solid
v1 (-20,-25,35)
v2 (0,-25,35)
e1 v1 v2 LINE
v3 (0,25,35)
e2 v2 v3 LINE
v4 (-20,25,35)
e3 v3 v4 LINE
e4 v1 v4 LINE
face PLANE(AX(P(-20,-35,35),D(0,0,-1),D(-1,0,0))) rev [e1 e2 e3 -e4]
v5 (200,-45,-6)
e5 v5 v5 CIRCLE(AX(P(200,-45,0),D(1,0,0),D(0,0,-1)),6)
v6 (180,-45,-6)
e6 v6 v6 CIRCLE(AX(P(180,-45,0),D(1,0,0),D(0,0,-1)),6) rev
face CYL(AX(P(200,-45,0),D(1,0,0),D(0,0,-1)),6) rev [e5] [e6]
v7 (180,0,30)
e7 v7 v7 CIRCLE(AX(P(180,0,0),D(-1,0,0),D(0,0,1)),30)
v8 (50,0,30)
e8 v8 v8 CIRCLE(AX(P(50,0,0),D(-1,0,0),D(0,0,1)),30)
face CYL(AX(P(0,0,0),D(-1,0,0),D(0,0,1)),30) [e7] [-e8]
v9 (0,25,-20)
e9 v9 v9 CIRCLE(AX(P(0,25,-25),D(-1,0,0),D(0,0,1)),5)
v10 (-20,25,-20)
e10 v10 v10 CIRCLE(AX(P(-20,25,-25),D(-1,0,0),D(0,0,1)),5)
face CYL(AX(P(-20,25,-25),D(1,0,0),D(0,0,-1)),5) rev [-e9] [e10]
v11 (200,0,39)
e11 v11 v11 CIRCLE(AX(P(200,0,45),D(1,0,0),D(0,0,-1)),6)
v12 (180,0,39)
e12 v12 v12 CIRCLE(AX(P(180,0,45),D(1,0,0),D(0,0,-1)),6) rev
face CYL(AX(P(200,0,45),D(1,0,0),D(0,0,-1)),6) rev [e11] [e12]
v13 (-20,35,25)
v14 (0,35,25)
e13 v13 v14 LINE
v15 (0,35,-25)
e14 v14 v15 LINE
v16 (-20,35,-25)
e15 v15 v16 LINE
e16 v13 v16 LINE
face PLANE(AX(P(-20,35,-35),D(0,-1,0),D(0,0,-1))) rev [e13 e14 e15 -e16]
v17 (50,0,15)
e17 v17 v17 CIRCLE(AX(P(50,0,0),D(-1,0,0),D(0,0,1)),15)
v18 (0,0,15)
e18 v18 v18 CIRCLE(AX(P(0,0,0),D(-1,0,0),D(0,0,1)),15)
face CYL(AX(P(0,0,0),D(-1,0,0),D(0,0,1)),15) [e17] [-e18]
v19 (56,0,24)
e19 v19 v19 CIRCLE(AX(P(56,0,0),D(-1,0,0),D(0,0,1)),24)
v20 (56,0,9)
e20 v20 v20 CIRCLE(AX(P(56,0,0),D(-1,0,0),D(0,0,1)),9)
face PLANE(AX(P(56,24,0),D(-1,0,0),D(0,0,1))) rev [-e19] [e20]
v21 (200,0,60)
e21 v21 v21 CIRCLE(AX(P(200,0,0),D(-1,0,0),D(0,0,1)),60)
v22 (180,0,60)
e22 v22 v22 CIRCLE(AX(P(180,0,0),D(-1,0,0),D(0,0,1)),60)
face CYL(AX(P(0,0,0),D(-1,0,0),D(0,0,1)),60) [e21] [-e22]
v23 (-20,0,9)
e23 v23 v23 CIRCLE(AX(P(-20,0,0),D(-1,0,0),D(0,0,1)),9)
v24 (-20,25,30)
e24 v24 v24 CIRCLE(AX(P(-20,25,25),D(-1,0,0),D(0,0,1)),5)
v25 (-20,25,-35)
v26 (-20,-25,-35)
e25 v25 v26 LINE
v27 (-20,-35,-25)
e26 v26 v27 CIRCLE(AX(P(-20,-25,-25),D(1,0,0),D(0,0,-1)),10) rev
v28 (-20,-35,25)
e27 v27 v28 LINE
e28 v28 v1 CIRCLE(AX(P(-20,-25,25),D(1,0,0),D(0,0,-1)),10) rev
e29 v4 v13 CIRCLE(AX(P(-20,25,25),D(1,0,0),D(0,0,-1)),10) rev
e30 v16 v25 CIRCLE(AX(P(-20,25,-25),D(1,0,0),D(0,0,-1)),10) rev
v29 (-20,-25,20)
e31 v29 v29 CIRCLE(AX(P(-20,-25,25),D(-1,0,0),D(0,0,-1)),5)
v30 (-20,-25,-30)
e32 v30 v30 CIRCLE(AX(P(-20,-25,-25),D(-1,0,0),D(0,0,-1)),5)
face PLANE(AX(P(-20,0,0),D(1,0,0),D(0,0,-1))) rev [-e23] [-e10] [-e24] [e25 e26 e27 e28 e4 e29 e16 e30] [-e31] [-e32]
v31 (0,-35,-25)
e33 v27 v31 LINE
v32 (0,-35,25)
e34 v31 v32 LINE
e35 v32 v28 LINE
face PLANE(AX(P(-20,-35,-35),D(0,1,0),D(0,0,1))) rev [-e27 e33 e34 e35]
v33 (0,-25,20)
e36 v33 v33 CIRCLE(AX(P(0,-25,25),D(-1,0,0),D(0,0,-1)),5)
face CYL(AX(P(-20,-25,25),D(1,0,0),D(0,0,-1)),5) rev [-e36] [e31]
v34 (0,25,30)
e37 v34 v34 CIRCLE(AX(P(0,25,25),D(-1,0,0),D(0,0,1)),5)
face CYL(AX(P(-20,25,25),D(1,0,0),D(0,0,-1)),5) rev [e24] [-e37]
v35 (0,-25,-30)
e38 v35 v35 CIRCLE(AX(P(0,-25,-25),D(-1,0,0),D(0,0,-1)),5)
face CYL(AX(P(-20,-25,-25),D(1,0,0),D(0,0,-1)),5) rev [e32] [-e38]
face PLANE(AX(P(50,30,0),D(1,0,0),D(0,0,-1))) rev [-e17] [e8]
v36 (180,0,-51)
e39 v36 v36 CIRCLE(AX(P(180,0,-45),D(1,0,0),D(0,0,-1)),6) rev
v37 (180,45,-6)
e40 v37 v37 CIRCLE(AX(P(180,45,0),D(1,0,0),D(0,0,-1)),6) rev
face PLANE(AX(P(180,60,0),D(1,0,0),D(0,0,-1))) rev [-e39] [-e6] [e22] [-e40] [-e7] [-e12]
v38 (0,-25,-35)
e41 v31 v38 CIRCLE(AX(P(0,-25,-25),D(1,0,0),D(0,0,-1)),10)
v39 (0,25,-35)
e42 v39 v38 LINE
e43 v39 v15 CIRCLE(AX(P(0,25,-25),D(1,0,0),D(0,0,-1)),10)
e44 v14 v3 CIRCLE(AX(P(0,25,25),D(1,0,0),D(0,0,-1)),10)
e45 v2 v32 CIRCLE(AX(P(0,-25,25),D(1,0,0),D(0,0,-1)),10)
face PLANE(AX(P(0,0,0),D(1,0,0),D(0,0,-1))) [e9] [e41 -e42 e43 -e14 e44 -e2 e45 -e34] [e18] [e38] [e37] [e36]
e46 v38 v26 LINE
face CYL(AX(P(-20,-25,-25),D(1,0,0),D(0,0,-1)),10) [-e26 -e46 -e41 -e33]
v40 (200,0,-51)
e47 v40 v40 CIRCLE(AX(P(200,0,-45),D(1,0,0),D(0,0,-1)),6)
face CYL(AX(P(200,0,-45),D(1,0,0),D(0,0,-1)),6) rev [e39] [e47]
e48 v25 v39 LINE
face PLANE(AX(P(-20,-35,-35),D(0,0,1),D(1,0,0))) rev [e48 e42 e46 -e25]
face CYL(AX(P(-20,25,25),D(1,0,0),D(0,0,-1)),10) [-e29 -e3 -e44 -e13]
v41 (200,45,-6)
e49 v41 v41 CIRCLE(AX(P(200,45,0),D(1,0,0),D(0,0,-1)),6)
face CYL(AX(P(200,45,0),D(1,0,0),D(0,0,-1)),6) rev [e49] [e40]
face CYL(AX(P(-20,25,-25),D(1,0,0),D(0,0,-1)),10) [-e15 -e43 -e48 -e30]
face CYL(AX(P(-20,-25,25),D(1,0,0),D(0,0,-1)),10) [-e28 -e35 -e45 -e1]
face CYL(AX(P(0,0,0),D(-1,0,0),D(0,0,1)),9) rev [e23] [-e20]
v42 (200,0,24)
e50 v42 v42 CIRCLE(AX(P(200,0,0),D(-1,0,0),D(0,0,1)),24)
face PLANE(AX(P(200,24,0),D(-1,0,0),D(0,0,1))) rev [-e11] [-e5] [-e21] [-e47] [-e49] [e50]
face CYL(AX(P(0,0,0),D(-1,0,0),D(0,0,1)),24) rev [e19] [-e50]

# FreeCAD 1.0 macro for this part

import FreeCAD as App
import Part
import Sketcher


def edges_at(feature, points):
    """Names of the edges that pass closest to the given points."""
    edges = feature.Shape.Edges
    near = lambda p: min(range(len(edges)), key=lambda i: edges[i].distToShape(Part.Vertex(*p))[0])
    return sorted({f"Edge{near(p) + 1}" for p in points})

doc = App.newDocument("Part")
body = doc.addObject("PartDesign::Body", "Body")

# Sketch on XY plane
sketch1 = body.newObject("Sketcher::SketchObject", "Sketch")
sketch1.AttachmentSupport = (doc.getObject("XY_Plane"), [""])
sketch1.MapMode = "FlatFace"
sketch1.addGeometry([
    Part.LineSegment(App.Vector(200, 24, 0), App.Vector(200, 60, 0)),  # 0
    Part.LineSegment(App.Vector(200, 60, 0), App.Vector(180, 60, 0)),  # 1
    Part.LineSegment(App.Vector(180, 60, 0), App.Vector(180, 30, 0)),  # 2
    Part.LineSegment(App.Vector(180, 30, 0), App.Vector(50, 30, 0)),  # 3
    Part.LineSegment(App.Vector(50, 30, 0), App.Vector(50, 15, 0)),  # 4
    Part.LineSegment(App.Vector(50, 15, 0), App.Vector(0, 15, 0)),  # 5
    Part.LineSegment(App.Vector(0, 15, 0), App.Vector(0, 9, 0)),  # 6
    Part.LineSegment(App.Vector(0, 9, 0), App.Vector(56, 9, 0)),  # 7
    Part.LineSegment(App.Vector(56, 9, 0), App.Vector(56, 24, 0)),  # 8
    Part.LineSegment(App.Vector(56, 24, 0), App.Vector(200, 24, 0)),  # 9
], False)
sketch1.addConstraint([
    Sketcher.Constraint("Coincident", 0, 2, 1, 1),
    Sketcher.Constraint("Coincident", 1, 2, 2, 1),
    Sketcher.Constraint("Coincident", 2, 2, 3, 1),
    Sketcher.Constraint("Coincident", 3, 2, 4, 1),
    Sketcher.Constraint("Coincident", 4, 2, 5, 1),
    Sketcher.Constraint("Coincident", 5, 2, 6, 1),
    Sketcher.Constraint("Coincident", 6, 2, 7, 1),
    Sketcher.Constraint("Coincident", 7, 2, 8, 1),
    Sketcher.Constraint("Coincident", 8, 2, 9, 1),
    Sketcher.Constraint("Coincident", 9, 2, 0, 1),
    Sketcher.Constraint("Vertical", 0),
    Sketcher.Constraint("Horizontal", 1),
    Sketcher.Constraint("Vertical", 2),
    Sketcher.Constraint("Horizontal", 3),
    Sketcher.Constraint("Vertical", 4),
    Sketcher.Constraint("Horizontal", 5),
    Sketcher.Constraint("Vertical", 6),
    Sketcher.Constraint("Horizontal", 7),
    Sketcher.Constraint("Vertical", 8),
    Sketcher.Constraint("Horizontal", 9),
    Sketcher.Constraint("PointOnObject", 5, 2, -2),
    Sketcher.Constraint("Equal", 4, 8),
    Sketcher.Constraint("DistanceX", 1, 2, 1, 1, 20.0),
    Sketcher.Constraint("DistanceX", 3, 2, 3, 1, 130.0),
    Sketcher.Constraint("DistanceX", 5, 2, 5, 1, 50.0),
    Sketcher.Constraint("DistanceX", 7, 1, 7, 2, 56.0),
    Sketcher.Constraint("DistanceY", 0, 1, 0, 2, 36.0),
    Sketcher.Constraint("DistanceY", 2, 2, 2, 1, 30.0),
    Sketcher.Constraint("DistanceY", 4, 2, 4, 1, 15.0),
    Sketcher.Constraint("DistanceY", -1, 1, 0, 2, 60.0),
])
revolution = body.newObject("PartDesign::Revolution", "Revolution")
revolution.Profile = sketch1
revolution.ReferenceAxis = (sketch1, ["H_Axis"])
revolution.Angle = 360

# Sketch on YZ plane
sketch2 = body.newObject("Sketcher::SketchObject", "Sketch001")
sketch2.AttachmentSupport = (doc.getObject("YZ_Plane"), [""])
sketch2.MapMode = "FlatFace"
sketch2.addGeometry([
    Part.LineSegment(App.Vector(35, -35, 0), App.Vector(-35, -35, 0)),  # 0
    Part.LineSegment(App.Vector(-35, -35, 0), App.Vector(-35, 35, 0)),  # 1
    Part.LineSegment(App.Vector(-35, 35, 0), App.Vector(35, 35, 0)),  # 2
    Part.LineSegment(App.Vector(35, 35, 0), App.Vector(35, -35, 0)),  # 3
    Part.Circle(App.Vector(-25, -25, 0), App.Vector(0, 0, 1), 5),  # 4
    Part.Circle(App.Vector(-25, 25, 0), App.Vector(0, 0, 1), 5),  # 5
    Part.Circle(App.Vector(25, -25, 0), App.Vector(0, 0, 1), 5),  # 6
    Part.Circle(App.Vector(0, 0, 0), App.Vector(0, 0, 1), 9),  # 7
    Part.Circle(App.Vector(25, 25, 0), App.Vector(0, 0, 1), 5),  # 8
], False)
sketch2.addConstraint([
    Sketcher.Constraint("Coincident", 0, 2, 1, 1),
    Sketcher.Constraint("Coincident", 1, 2, 2, 1),
    Sketcher.Constraint("Coincident", 2, 2, 3, 1),
    Sketcher.Constraint("Coincident", 3, 2, 0, 1),
    Sketcher.Constraint("Horizontal", 0),
    Sketcher.Constraint("Vertical", 1),
    Sketcher.Constraint("Horizontal", 2),
    Sketcher.Constraint("Vertical", 3),
    Sketcher.Constraint("Coincident", 7, 3, -1, 1),
    Sketcher.Constraint("Equal", 4, 5),
    Sketcher.Constraint("Equal", 5, 6),
    Sketcher.Constraint("Equal", 6, 8),
    Sketcher.Constraint("Symmetric", 5, 3, 6, 3, -1, 1),
    Sketcher.Constraint("Symmetric", 4, 3, 8, 3, -1, 1),
    Sketcher.Constraint("Symmetric", 0, 2, 2, 2, -1, 1),
    Sketcher.Constraint("Symmetric", 4, 3, 6, 3, -2),
    Sketcher.Constraint("Equal", 2, 1),
    Sketcher.Constraint("Diameter", 4, 10.0),
    Sketcher.Constraint("Diameter", 7, 18.0),
    Sketcher.Constraint("DistanceX", 0, 2, 0, 1, 70.0),
    Sketcher.Constraint("DistanceX", 4, 3, -1, 1, 25.0),
    Sketcher.Constraint("DistanceY", 4, 3, -1, 1, 25.0),
])
pad1 = body.newObject("PartDesign::Pad", "Pad")
pad1.Profile = sketch2
pad1.Length = 20
pad1.Reversed = True
doc.recompute()

fillet = body.newObject("PartDesign::Fillet", "Fillet")
fillet.Base = (pad1, edges_at(pad1, [
    (-10, -35, 35),
    (-10, 35, 35),
    (-10, 35, -35),
    (-10, -35, -35),
]))
fillet.Radius = 10

# Sketch on YZ plane
sketch3 = body.newObject("Sketcher::SketchObject", "Sketch002")
sketch3.AttachmentSupport = (doc.getObject("YZ_Plane"), [""])
sketch3.MapMode = "FlatFace"
sketch3.AttachmentOffset = App.Placement(App.Vector(0, 0, 200), App.Rotation())
sketch3.addGeometry([
    Part.Circle(App.Vector(0, -45, 0), App.Vector(0, 0, 1), 6),
    Part.Circle(App.Vector(45, 0, 0), App.Vector(0, 0, 1), 6),
    Part.Circle(App.Vector(0, 45, 0), App.Vector(0, 0, 1), 6),
    Part.Circle(App.Vector(-45, 0, 0), App.Vector(0, 0, 1), 6),
], False)
sketch3.addConstraint([
    Sketcher.Constraint("Equal", 0, 1),
    Sketcher.Constraint("Equal", 1, 2),
    Sketcher.Constraint("Equal", 2, 3),
    Sketcher.Constraint("Symmetric", 0, 3, 2, 3, -1, 1),
    Sketcher.Constraint("Symmetric", 1, 3, 3, 3, -1, 1),
    Sketcher.Constraint("PointOnObject", 0, 3, -2),
    Sketcher.Constraint("PointOnObject", 1, 3, -1),
    Sketcher.Constraint("Diameter", 0, 12.0),
    Sketcher.Constraint("DistanceY", 0, 3, -1, 1, 45.0),
    Sketcher.Constraint("DistanceX", -1, 1, 1, 3, 45.0),
])
doc.recompute()
hole = body.newObject("PartDesign::Hole", "Hole")
hole.Profile = sketch3
hole.ThreadType = "None"
hole.Diameter = 12
hole.DepthType = "ThroughAll"

doc.recompute()
